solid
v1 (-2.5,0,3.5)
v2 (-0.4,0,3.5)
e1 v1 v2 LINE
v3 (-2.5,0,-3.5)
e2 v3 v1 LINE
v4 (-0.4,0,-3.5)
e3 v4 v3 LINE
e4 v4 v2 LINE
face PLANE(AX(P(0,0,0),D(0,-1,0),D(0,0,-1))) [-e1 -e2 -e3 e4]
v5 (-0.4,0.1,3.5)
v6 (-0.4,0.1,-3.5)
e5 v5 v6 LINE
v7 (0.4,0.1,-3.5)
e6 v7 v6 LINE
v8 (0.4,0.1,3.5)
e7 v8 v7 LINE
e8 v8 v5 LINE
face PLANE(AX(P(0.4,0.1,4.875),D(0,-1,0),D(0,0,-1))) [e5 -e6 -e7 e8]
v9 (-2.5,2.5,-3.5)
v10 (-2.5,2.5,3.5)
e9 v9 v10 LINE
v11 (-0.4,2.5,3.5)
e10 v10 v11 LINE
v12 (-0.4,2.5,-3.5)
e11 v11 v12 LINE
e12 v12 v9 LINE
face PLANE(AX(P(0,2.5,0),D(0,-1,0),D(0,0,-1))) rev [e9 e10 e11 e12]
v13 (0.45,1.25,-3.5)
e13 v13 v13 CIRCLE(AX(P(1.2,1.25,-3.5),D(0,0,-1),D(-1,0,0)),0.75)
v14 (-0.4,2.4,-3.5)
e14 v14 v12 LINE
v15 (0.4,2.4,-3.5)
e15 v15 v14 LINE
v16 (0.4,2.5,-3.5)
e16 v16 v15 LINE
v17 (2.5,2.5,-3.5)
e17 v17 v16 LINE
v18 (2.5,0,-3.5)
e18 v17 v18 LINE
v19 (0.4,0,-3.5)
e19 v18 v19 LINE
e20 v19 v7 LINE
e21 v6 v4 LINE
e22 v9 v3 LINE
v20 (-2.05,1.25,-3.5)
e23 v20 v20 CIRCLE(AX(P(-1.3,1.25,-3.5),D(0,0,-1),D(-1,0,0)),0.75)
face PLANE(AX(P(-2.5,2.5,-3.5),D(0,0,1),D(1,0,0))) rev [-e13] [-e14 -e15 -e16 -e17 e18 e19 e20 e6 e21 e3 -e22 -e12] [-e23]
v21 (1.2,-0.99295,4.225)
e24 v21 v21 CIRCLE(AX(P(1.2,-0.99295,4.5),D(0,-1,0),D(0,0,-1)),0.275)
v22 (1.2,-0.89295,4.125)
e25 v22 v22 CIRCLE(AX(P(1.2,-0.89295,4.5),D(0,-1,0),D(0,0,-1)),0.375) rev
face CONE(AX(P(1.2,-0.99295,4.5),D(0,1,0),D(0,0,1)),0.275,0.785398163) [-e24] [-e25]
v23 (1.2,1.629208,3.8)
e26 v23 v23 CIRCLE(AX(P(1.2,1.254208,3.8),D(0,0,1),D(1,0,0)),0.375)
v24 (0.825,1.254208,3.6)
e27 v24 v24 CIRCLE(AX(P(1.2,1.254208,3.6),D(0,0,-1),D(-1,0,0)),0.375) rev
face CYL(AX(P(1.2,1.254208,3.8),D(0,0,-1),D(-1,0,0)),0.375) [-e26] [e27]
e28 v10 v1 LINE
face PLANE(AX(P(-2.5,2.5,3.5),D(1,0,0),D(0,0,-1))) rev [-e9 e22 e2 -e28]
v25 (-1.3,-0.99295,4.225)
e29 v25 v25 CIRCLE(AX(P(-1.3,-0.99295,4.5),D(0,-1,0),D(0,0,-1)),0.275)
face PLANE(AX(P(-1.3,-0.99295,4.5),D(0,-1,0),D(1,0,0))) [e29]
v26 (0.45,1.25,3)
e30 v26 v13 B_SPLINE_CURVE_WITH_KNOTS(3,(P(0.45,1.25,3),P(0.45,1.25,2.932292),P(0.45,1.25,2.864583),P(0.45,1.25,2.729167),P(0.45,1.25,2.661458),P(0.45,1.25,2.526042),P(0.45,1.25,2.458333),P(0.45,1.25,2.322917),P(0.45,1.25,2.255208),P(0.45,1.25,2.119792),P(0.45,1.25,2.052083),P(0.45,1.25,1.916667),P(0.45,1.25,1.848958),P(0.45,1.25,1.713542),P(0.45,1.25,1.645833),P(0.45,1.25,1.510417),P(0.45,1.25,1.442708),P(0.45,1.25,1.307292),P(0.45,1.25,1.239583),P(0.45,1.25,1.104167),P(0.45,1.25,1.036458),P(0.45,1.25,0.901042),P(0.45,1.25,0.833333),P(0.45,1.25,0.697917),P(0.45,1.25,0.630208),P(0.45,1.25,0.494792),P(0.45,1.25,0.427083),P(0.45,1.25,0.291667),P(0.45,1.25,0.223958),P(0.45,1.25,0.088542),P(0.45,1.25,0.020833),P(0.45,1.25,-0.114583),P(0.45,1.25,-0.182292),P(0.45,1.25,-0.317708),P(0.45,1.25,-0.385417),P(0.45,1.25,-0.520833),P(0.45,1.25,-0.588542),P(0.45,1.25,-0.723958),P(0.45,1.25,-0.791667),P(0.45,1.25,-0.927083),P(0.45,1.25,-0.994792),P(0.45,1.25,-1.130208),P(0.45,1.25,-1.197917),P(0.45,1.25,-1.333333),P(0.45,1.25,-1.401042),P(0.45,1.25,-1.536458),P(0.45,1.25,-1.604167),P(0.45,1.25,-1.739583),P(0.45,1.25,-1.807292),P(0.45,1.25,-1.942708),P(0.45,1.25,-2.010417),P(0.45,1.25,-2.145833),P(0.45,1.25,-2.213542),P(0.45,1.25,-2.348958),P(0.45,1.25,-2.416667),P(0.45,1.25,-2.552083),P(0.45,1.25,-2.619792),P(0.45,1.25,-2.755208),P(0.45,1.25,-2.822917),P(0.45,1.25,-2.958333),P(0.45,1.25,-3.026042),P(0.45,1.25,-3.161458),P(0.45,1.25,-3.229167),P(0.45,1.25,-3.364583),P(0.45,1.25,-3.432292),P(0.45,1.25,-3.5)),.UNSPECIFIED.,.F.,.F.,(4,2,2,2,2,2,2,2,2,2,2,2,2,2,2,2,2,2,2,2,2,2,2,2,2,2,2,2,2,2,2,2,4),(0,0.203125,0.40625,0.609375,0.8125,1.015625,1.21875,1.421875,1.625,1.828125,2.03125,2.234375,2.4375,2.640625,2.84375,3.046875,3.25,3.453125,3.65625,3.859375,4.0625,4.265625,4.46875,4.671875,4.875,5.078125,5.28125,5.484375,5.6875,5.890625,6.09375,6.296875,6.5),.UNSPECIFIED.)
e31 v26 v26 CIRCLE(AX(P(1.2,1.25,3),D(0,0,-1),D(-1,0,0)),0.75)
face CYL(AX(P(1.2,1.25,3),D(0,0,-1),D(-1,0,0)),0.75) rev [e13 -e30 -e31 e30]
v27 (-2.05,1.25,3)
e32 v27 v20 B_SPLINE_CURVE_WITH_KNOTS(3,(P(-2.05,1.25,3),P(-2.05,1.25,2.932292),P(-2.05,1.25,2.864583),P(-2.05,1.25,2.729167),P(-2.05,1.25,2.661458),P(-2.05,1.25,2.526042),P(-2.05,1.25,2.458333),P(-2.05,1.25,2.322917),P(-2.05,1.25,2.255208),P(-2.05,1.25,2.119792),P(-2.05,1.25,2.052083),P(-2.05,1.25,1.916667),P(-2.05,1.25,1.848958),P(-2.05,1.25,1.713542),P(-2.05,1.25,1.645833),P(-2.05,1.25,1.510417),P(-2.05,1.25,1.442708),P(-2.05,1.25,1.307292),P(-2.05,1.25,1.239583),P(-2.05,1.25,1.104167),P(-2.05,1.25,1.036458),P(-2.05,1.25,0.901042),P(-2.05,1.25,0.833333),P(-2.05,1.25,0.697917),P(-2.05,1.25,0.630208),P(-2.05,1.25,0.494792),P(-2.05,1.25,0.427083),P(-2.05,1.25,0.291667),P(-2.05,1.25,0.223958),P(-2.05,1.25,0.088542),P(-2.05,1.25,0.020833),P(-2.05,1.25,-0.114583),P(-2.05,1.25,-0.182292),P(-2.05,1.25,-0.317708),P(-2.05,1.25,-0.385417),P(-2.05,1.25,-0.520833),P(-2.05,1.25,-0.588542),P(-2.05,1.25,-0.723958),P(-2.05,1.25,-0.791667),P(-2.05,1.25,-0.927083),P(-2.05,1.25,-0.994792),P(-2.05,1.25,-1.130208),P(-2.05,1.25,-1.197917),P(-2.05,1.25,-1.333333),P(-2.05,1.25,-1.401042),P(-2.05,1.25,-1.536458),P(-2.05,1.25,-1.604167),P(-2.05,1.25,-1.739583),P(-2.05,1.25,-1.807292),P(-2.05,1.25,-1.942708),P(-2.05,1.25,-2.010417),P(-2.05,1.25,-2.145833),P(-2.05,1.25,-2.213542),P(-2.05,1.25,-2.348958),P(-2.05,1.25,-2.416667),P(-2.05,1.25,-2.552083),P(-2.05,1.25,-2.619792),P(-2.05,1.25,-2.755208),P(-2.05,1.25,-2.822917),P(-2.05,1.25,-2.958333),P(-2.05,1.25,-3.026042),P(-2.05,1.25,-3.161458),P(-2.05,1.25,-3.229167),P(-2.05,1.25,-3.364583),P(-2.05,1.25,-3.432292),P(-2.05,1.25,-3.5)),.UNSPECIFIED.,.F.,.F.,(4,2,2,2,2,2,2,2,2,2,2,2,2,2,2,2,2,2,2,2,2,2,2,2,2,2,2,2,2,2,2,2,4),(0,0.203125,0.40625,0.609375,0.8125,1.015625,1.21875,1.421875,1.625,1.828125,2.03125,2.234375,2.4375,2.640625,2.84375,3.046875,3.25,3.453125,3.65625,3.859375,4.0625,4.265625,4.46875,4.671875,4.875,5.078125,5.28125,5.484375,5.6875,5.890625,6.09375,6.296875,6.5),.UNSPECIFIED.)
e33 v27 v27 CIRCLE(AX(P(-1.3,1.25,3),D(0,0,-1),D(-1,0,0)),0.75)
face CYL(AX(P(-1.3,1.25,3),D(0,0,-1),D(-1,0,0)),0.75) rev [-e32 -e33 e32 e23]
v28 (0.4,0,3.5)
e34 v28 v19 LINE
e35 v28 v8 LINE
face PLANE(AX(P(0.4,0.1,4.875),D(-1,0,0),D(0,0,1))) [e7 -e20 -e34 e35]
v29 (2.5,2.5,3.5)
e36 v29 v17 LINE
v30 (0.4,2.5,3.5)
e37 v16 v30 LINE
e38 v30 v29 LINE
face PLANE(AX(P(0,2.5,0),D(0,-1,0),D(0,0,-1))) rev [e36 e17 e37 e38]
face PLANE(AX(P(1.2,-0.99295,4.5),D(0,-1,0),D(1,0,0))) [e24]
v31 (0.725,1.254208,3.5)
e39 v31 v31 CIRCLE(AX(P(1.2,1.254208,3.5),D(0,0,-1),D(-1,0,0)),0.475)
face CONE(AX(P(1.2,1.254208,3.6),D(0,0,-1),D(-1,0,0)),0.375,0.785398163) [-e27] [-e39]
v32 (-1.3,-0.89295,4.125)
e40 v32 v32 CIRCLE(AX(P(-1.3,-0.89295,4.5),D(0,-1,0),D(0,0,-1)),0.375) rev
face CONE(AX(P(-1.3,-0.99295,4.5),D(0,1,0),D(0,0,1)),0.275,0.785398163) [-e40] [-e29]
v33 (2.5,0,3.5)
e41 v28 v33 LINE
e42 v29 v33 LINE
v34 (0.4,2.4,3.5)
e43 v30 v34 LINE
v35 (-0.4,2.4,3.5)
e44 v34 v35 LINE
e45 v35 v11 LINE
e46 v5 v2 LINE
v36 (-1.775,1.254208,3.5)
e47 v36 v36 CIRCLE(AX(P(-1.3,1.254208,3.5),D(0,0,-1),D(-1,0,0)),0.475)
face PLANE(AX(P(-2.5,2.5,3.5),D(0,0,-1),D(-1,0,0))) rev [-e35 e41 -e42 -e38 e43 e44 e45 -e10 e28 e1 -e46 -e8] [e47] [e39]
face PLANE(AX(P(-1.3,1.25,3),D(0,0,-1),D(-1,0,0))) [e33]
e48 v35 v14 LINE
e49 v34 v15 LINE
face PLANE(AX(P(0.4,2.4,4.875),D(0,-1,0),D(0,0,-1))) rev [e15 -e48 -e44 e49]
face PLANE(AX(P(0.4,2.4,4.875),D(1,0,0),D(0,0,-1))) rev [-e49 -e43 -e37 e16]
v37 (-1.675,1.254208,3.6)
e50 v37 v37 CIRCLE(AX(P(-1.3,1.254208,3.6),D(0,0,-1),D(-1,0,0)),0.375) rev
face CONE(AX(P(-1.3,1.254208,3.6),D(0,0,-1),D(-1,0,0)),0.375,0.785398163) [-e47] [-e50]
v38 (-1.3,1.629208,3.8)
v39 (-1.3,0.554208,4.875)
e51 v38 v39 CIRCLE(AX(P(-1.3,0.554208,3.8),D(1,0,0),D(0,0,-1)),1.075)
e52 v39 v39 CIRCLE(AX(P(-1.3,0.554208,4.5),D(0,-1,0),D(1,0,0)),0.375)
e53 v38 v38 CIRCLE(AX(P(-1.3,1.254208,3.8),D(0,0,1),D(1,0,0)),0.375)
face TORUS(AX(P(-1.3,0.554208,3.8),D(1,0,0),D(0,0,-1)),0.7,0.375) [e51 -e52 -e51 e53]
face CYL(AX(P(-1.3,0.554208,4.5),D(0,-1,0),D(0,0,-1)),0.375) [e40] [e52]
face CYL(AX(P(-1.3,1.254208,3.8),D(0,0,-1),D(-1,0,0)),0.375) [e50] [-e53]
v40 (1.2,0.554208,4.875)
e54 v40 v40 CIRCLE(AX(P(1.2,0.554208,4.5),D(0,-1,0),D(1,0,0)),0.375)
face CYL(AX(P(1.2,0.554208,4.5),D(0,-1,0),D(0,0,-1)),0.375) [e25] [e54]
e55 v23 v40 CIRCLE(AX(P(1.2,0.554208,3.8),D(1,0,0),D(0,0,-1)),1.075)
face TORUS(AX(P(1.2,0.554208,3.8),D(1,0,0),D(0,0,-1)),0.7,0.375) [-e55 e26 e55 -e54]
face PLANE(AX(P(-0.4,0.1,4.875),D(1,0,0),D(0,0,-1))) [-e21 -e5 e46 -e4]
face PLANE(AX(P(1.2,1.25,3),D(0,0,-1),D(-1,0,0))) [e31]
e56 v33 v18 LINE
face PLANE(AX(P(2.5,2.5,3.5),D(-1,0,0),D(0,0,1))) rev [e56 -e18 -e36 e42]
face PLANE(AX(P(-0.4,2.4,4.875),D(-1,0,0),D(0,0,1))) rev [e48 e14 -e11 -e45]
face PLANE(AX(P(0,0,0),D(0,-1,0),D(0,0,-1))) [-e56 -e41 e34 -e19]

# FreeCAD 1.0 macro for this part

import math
import FreeCAD as App
import Part
import Sketcher


def edges_at(feature, points):
    """Names of the edges that pass closest to the given points."""
    edges = feature.Shape.Edges
    near = lambda p: min(range(len(edges)), key=lambda i: edges[i].distToShape(Part.Vertex(*p))[0])
    return sorted({f"Edge{near(p) + 1}" for p in points})


def add_polygon(sketch, points):
    """Adds a closed chain of lines whose ends are joined by coincident constraints."""
    first, n = sketch.GeometryCount, len(points)
    for a, b in zip(points, points[1:] + points[:1]):
        sketch.addGeometry(Part.LineSegment(App.Vector(*a, 0), App.Vector(*b, 0)), False)
    for i in range(n):
        sketch.addConstraint(Sketcher.Constraint("Coincident", first + i, 2, first + (i + 1) % n, 1))

doc = App.newDocument("Part")
body = doc.addObject("PartDesign::Body", "Body")

# Sketch on XZ plane
sketch1 = body.newObject("Sketcher::SketchObject", "Sketch")
sketch1.AttachmentSupport = (doc.getObject("XZ_Plane"), [""])
sketch1.MapMode = "FlatFace"
add_polygon(sketch1, [(-2.5, -3.5), (-2.5, 3.5), (2.5, 3.5), (2.5, -3.5)])  # lines 0-3
sketch1.addConstraint([
    Sketcher.Constraint("Vertical", 0),
    Sketcher.Constraint("Horizontal", 1),
    Sketcher.Constraint("Vertical", 2),
    Sketcher.Constraint("Horizontal", 3),
    Sketcher.Constraint("Symmetric", 0, 2, 2, 2, -1, 1),
    Sketcher.Constraint("DistanceX", 1, 1, 1, 2, 5.0),
    Sketcher.Constraint("DistanceY", 0, 1, 0, 2, 7.0),
])
pad1 = body.newObject("PartDesign::Pad", "Pad")
pad1.Profile = sketch1
pad1.Length = 2.5
pad1.Reversed = True

# Sketch on XY plane
sketch2 = body.newObject("Sketcher::SketchObject", "Sketch001")
sketch2.AttachmentSupport = (doc.getObject("XY_Plane"), [""])
sketch2.MapMode = "FlatFace"
sketch2.AttachmentOffset = App.Placement(App.Vector(0, 0, -3.5), App.Rotation())
sketch2.addGeometry(Part.Circle(App.Vector(1.2, 1.25, 0), App.Vector(0, 0, 1), 0.75), False)
sketch2.addConstraint([
    Sketcher.Constraint("Diameter", 0, 1.5),
    Sketcher.Constraint("DistanceX", -1, 1, 0, 3, 1.2),
    Sketcher.Constraint("DistanceY", -1, 1, 0, 3, 1.25),
])
pocket1 = body.newObject("PartDesign::Pocket", "Pocket")
pocket1.Profile = sketch2
pocket1.Length = 6.5
pocket1.Reversed = True

# Sketch on XY plane
sketch3 = body.newObject("Sketcher::SketchObject", "Sketch002")
sketch3.AttachmentSupport = (doc.getObject("XY_Plane"), [""])
sketch3.MapMode = "FlatFace"
sketch3.AttachmentOffset = App.Placement(App.Vector(0, 0, 3.5), App.Rotation())
sketch3.addGeometry(Part.Circle(App.Vector(1.2, 1.254208, 0), App.Vector(0, 0, 1), 0.375), False)
sketch3.addConstraint([
    Sketcher.Constraint("Diameter", 0, 0.75),
    Sketcher.Constraint("DistanceX", -1, 1, 0, 3, 1.2),
    Sketcher.Constraint("DistanceY", -1, 1, 0, 3, 1.254208),
])

# Sketch on YZ plane
sketch4 = body.newObject("Sketcher::SketchObject", "Sketch003")
sketch4.AttachmentSupport = (doc.getObject("YZ_Plane"), [""])
sketch4.MapMode = "FlatFace"
sketch4.AttachmentOffset = App.Placement(App.Vector(0, 0, 1.2), App.Rotation())
sketch4.addGeometry([
    Part.LineSegment(App.Vector(1.254208, 3.5, 0), App.Vector(1.254208, 3.8, 0)),
    Part.ArcOfCircle(Part.Circle(App.Vector(0.554208, 3.8, 0), App.Vector(0, 0, 1), 0.7), math.radians(0), math.radians(90)),
    Part.LineSegment(App.Vector(0.554208, 4.5, 0), App.Vector(-0.99295, 4.5, 0)),
], False)
sketch4.addConstraint([
    Sketcher.Constraint("Tangent", 0, 2, 1, 1),
    Sketcher.Constraint("Tangent", 1, 2, 2, 1),
    Sketcher.Constraint("Vertical", 0),
    Sketcher.Constraint("Horizontal", 2),
    Sketcher.Constraint("Radius", 1, 0.7),
    Sketcher.Constraint("DistanceY", 0, 1, 0, 2, 0.3),
    Sketcher.Constraint("DistanceY", -1, 1, 1, 3, 3.8),
    Sketcher.Constraint("DistanceX", 2, 2, 2, 1, 1.547159),
    Sketcher.Constraint("DistanceX", -1, 1, 1, 3, 0.554208),
])
doc.recompute()

additivepipe = body.newObject("PartDesign::AdditivePipe", "AdditivePipe")
additivepipe.Profile = sketch3
additivepipe.Spine = (sketch4, ["Edge1", "Edge2", "Edge3"])
doc.recompute()

chamfer = body.newObject("PartDesign::Chamfer", "Chamfer")
chamfer.Base = (additivepipe, edges_at(additivepipe, [(0.825, 1.254, 3.5), (0.825, -0.993, 4.5)]))
chamfer.Size = 0.1

# Sketch on XY plane
sketch5 = body.newObject("Sketcher::SketchObject", "Sketch004")
sketch5.AttachmentSupport = (doc.getObject("XY_Plane"), [""])
sketch5.MapMode = "FlatFace"
sketch5.AttachmentOffset = App.Placement(App.Vector(0, 0, -3.5), App.Rotation())
add_polygon(sketch5, [(0.4, 2.5), (0.4, 2.4), (-0.4, 2.4), (-0.4, 2.5)])  # lines 0-3
sketch5.addConstraint([
    Sketcher.Constraint("Vertical", 0),
    Sketcher.Constraint("Horizontal", 1),
    Sketcher.Constraint("Vertical", 2),
    Sketcher.Constraint("Horizontal", 3),
    Sketcher.Constraint("DistanceX", 1, 2, 1, 1, 0.8),
    Sketcher.Constraint("DistanceY", 0, 2, 0, 1, 0.1),
    Sketcher.Constraint("DistanceX", -1, 1, 0, 2, 0.4),
    Sketcher.Constraint("DistanceY", -1, 1, 0, 2, 2.4),
])
pocket2 = body.newObject("PartDesign::Pocket", "Pocket001")
pocket2.Profile = sketch5
pocket2.Type = "ThroughAll"
pocket2.Reversed = True
doc.recompute()

datumplane = body.newObject("PartDesign::Plane", "DatumPlane")
datumplane.AttachmentSupport = (doc.getObject("XZ_Plane"), [""])
datumplane.MapMode = "FlatFace"
datumplane.AttachmentOffset = App.Placement(App.Vector(0, 0, -1.25), App.Rotation())
mirrored = body.newObject("PartDesign::Mirrored", "Mirrored")
mirrored.Originals = [pocket2]
mirrored.MirrorPlane = (datumplane, [""])
body.Tip = mirrored
doc.recompute()

linearpattern = body.newObject("PartDesign::LinearPattern", "LinearPattern")
linearpattern.Originals = [pocket1]
linearpattern.Direction = (doc.getObject("X_Axis"), [""])
linearpattern.Mode = "offset"
linearpattern.Offset = 2.5
linearpattern.Occurrences = 2
linearpattern.Reversed = True
body.Tip = linearpattern
doc.recompute()

linearpattern2 = body.newObject("PartDesign::LinearPattern", "LinearPattern001")
linearpattern2.Originals = [additivepipe]
linearpattern2.Direction = (doc.getObject("X_Axis"), [""])
linearpattern2.Mode = "offset"
linearpattern2.Offset = 2.5
linearpattern2.Occurrences = 2
linearpattern2.Reversed = True
body.Tip = linearpattern2
doc.recompute()

chamfer2 = body.newObject("PartDesign::Chamfer", "Chamfer001")
chamfer2.Base = (linearpattern2, edges_at(linearpattern2, [(-1.675, 1.254, 3.5), (-1.675, -0.993, 4.5)]))
chamfer2.Size = 0.1

doc.recompute()
